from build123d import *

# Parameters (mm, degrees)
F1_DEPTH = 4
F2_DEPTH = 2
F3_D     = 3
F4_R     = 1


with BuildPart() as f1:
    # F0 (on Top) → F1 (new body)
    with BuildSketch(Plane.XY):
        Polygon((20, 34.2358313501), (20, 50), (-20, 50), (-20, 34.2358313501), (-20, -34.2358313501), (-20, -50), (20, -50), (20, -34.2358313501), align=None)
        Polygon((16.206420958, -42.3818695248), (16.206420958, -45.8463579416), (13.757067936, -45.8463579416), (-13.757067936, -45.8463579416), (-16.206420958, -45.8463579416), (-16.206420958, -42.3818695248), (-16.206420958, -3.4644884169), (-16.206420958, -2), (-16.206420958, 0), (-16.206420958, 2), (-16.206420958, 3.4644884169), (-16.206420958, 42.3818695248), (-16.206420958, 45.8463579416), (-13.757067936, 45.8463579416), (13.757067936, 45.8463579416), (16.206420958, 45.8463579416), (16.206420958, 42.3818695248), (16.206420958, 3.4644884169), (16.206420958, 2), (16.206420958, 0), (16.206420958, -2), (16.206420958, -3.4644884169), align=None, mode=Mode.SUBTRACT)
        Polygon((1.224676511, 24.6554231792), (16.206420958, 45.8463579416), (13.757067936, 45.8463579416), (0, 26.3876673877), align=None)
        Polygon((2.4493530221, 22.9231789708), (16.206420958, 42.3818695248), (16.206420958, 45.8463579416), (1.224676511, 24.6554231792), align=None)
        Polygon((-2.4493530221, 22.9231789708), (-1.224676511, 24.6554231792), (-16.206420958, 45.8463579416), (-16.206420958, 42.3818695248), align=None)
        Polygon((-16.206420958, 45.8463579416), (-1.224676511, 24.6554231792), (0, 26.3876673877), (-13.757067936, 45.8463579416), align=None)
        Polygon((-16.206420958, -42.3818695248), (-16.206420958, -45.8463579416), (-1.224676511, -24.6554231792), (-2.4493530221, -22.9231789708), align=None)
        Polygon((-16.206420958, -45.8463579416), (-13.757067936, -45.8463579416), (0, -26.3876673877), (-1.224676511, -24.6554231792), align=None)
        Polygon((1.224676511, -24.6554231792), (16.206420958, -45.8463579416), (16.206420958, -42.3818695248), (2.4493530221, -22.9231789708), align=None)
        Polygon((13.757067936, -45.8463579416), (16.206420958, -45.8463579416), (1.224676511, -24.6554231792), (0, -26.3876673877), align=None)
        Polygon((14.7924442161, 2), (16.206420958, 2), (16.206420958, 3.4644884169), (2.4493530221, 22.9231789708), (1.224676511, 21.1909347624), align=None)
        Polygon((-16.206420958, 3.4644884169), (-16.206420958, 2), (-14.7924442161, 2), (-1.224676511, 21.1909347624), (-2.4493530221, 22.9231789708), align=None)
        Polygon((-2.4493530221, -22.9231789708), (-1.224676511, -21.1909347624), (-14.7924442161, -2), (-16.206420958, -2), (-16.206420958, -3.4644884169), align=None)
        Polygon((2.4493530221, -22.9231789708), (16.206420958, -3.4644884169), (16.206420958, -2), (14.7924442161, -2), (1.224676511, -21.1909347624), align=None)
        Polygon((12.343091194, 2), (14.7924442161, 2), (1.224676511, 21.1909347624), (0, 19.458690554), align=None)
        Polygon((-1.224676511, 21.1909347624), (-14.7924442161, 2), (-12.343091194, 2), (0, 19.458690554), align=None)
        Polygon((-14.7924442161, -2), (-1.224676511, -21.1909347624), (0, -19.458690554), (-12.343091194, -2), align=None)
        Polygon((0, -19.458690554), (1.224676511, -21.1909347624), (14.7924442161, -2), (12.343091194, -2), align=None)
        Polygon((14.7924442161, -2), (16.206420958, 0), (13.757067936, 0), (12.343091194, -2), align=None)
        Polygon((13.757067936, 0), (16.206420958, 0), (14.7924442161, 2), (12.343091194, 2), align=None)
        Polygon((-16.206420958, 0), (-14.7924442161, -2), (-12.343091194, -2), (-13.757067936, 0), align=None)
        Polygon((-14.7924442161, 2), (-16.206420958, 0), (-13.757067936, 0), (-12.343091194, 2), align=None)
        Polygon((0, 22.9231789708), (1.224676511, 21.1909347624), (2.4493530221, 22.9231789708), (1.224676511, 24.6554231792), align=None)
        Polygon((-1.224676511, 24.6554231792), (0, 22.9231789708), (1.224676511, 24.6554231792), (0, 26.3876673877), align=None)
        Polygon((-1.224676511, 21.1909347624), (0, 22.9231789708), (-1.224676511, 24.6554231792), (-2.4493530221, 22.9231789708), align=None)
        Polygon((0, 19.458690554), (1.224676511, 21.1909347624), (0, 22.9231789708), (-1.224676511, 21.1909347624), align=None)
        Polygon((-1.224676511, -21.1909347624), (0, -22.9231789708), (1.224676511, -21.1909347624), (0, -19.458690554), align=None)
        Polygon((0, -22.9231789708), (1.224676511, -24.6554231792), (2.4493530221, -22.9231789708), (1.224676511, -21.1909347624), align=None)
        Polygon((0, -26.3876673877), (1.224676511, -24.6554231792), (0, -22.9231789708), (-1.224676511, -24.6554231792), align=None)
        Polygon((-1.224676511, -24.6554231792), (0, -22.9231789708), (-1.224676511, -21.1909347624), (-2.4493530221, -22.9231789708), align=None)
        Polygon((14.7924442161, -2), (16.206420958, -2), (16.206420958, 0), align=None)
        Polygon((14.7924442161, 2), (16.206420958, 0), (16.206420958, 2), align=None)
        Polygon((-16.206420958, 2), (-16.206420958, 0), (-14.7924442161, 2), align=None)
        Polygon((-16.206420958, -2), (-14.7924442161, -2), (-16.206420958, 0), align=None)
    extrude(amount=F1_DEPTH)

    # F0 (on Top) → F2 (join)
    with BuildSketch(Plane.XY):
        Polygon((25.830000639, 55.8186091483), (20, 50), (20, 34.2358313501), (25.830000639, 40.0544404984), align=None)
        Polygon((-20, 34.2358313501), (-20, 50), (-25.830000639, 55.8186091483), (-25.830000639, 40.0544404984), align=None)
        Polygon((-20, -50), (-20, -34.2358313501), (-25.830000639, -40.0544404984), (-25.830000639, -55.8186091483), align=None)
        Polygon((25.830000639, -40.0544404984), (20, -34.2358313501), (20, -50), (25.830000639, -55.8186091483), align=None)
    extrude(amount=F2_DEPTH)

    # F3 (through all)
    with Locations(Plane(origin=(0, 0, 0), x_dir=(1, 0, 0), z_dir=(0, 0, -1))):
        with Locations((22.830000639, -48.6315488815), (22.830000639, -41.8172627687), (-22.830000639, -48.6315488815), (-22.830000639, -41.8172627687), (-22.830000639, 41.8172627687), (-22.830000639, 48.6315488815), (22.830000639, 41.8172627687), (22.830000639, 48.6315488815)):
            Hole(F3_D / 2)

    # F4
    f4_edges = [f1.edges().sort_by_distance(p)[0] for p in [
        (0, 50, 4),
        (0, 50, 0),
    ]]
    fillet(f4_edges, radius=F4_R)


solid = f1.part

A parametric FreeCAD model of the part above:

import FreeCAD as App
import Part
import Sketcher


def edges_at(feature, points):
    """Names of the edges that pass closest to the given points."""
    edges = feature.Shape.Edges
    near = lambda p: min(range(len(edges)), key=lambda i: edges[i].distToShape(Part.Vertex(*p))[0])
    return sorted({f"Edge{near(p) + 1}" for p in points})

doc = App.newDocument("Part")
params = doc.addObject("Spreadsheet::Sheet", "Params")
for row, (alias, value) in enumerate([
    ("sketch1_width", "40 mm"),
    ("sketch1_height", "100 mm"),
    ("pad1_length", "4 mm"),
    ("pad2_length", "2 mm"),
    ("sketch3_diameter", "3 mm"),
    ("hole_diameter", "3 mm"),
    ("fillet_radius", "1 mm"),
], start=1):
    params.set(f"A{row}", alias)
    params.set(f"B{row}", "=" + value)
    params.setAlias(f"B{row}", alias)

body = doc.addObject("PartDesign::Body", "Body")

sketch1 = doc.addObject("Sketcher::SketchObject", "Sketch")
body.addObject(sketch1)
sketch1.AttachmentSupport = (doc.XY_Plane, [""])
sketch1.MapMode = "FlatFace"
sketch1.addGeometry(Part.LineSegment(App.Vector(20, 50, 0), App.Vector(-20, 50, 0)), False)
sketch1.addGeometry(Part.LineSegment(App.Vector(-20, 50, 0), App.Vector(-20, -50, 0)), False)
sketch1.addGeometry(Part.LineSegment(App.Vector(-20, -50, 0), App.Vector(20, -50, 0)), False)
sketch1.addGeometry(Part.LineSegment(App.Vector(20, -50, 0), App.Vector(20, 50, 0)), False)
sketch1.addGeometry(Part.LineSegment(App.Vector(-16.2, -3.5, 0), App.Vector(-2.4, -22.9, 0)), False)
sketch1.addGeometry(Part.LineSegment(App.Vector(-2.4, -22.9, 0), App.Vector(-16.2, -42.4, 0)), False)
sketch1.addGeometry(Part.LineSegment(App.Vector(-16.2, -42.4, 0), App.Vector(-16.2, -3.5, 0)), False)
sketch1.addGeometry(Part.LineSegment(App.Vector(-13.8, -45.8, 0), App.Vector(0, -26.4, 0)), False)
sketch1.addGeometry(Part.LineSegment(App.Vector(0, -26.4, 0), App.Vector(13.8, -45.8, 0)), False)
sketch1.addGeometry(Part.LineSegment(App.Vector(13.8, -45.8, 0), App.Vector(-13.8, -45.8, 0)), False)
sketch1.addGeometry(Part.LineSegment(App.Vector(16.2, -42.4, 0), App.Vector(2.4, -22.9, 0)), False)
sketch1.addGeometry(Part.LineSegment(App.Vector(2.4, -22.9, 0), App.Vector(16.2, -3.5, 0)), False)
sketch1.addGeometry(Part.LineSegment(App.Vector(16.2, -3.5, 0), App.Vector(16.2, -42.4, 0)), False)
sketch1.addGeometry(Part.LineSegment(App.Vector(-16.2, 42.4, 0), App.Vector(-2.4, 22.9, 0)), False)
sketch1.addGeometry(Part.LineSegment(App.Vector(-2.4, 22.9, 0), App.Vector(-16.2, 3.5, 0)), False)
sketch1.addGeometry(Part.LineSegment(App.Vector(-16.2, 3.5, 0), App.Vector(-16.2, 42.4, 0)), False)
sketch1.addGeometry(Part.LineSegment(App.Vector(12.3, -2, 0), App.Vector(0, -19.5, 0)), False)
sketch1.addGeometry(Part.LineSegment(App.Vector(0, -19.5, 0), App.Vector(-12.3, -2, 0)), False)
sketch1.addGeometry(Part.LineSegment(App.Vector(-12.3, -2, 0), App.Vector(-13.8, 0, 0)), False)
sketch1.addGeometry(Part.LineSegment(App.Vector(-13.8, 0, 0), App.Vector(-12.3, 2, 0)), False)
sketch1.addGeometry(Part.LineSegment(App.Vector(-12.3, 2, 0), App.Vector(0, 19.5, 0)), False)
sketch1.addGeometry(Part.LineSegment(App.Vector(0, 19.5, 0), App.Vector(12.3, 2, 0)), False)
sketch1.addGeometry(Part.LineSegment(App.Vector(12.3, 2, 0), App.Vector(13.8, 0, 0)), False)
sketch1.addGeometry(Part.LineSegment(App.Vector(13.8, 0, 0), App.Vector(12.3, -2, 0)), False)
sketch1.addGeometry(Part.LineSegment(App.Vector(13.8, 45.8, 0), App.Vector(0, 26.4, 0)), False)
sketch1.addGeometry(Part.LineSegment(App.Vector(0, 26.4, 0), App.Vector(-13.8, 45.8, 0)), False)
sketch1.addGeometry(Part.LineSegment(App.Vector(-13.8, 45.8, 0), App.Vector(13.8, 45.8, 0)), False)
sketch1.addGeometry(Part.LineSegment(App.Vector(16.2, 3.5, 0), App.Vector(2.4, 22.9, 0)), False)
sketch1.addGeometry(Part.LineSegment(App.Vector(2.4, 22.9, 0), App.Vector(16.2, 42.4, 0)), False)
sketch1.addGeometry(Part.LineSegment(App.Vector(16.2, 42.4, 0), App.Vector(16.2, 3.5, 0)), False)
sketch1.addConstraint(Sketcher.Constraint("Coincident", 0, 2, 1, 1))
sketch1.addConstraint(Sketcher.Constraint("Coincident", 1, 2, 2, 1))
sketch1.addConstraint(Sketcher.Constraint("Coincident", 2, 2, 3, 1))
sketch1.addConstraint(Sketcher.Constraint("Coincident", 3, 2, 0, 1))
sketch1.addConstraint(Sketcher.Constraint("Coincident", 4, 2, 5, 1))
sketch1.addConstraint(Sketcher.Constraint("Coincident", 5, 2, 6, 1))
sketch1.addConstraint(Sketcher.Constraint("Coincident", 6, 2, 4, 1))
sketch1.addConstraint(Sketcher.Constraint("Coincident", 7, 2, 8, 1))
sketch1.addConstraint(Sketcher.Constraint("Coincident", 8, 2, 9, 1))
sketch1.addConstraint(Sketcher.Constraint("Coincident", 9, 2, 7, 1))
sketch1.addConstraint(Sketcher.Constraint("Coincident", 10, 2, 11, 1))
sketch1.addConstraint(Sketcher.Constraint("Coincident", 11, 2, 12, 1))
sketch1.addConstraint(Sketcher.Constraint("Coincident", 12, 2, 10, 1))
sketch1.addConstraint(Sketcher.Constraint("Coincident", 13, 2, 14, 1))
sketch1.addConstraint(Sketcher.Constraint("Coincident", 14, 2, 15, 1))
sketch1.addConstraint(Sketcher.Constraint("Coincident", 15, 2, 13, 1))
sketch1.addConstraint(Sketcher.Constraint("Coincident", 16, 2, 17, 1))
sketch1.addConstraint(Sketcher.Constraint("Coincident", 17, 2, 18, 1))
sketch1.addConstraint(Sketcher.Constraint("Coincident", 18, 2, 19, 1))
sketch1.addConstraint(Sketcher.Constraint("Coincident", 19, 2, 20, 1))
sketch1.addConstraint(Sketcher.Constraint("Coincident", 20, 2, 21, 1))
sketch1.addConstraint(Sketcher.Constraint("Coincident", 21, 2, 22, 1))
sketch1.addConstraint(Sketcher.Constraint("Coincident", 22, 2, 23, 1))
sketch1.addConstraint(Sketcher.Constraint("Coincident", 23, 2, 16, 1))
sketch1.addConstraint(Sketcher.Constraint("Coincident", 24, 2, 25, 1))
sketch1.addConstraint(Sketcher.Constraint("Coincident", 25, 2, 26, 1))
sketch1.addConstraint(Sketcher.Constraint("Coincident", 26, 2, 24, 1))
sketch1.addConstraint(Sketcher.Constraint("Coincident", 27, 2, 28, 1))
sketch1.addConstraint(Sketcher.Constraint("Coincident", 28, 2, 29, 1))
sketch1.addConstraint(Sketcher.Constraint("Coincident", 29, 2, 27, 1))
sketch1.addConstraint(Sketcher.Constraint("Horizontal", 0))
sketch1.addConstraint(Sketcher.Constraint("Vertical", 1))
sketch1.addConstraint(Sketcher.Constraint("Horizontal", 2))
sketch1.addConstraint(Sketcher.Constraint("Vertical", 3))
sketch1.addConstraint(Sketcher.Constraint("Vertical", 6))
sketch1.addConstraint(Sketcher.Constraint("Horizontal", 9))
sketch1.addConstraint(Sketcher.Constraint("Vertical", 12))
sketch1.addConstraint(Sketcher.Constraint("Vertical", 15))
sketch1.addConstraint(Sketcher.Constraint("Horizontal", 26))
sketch1.addConstraint(Sketcher.Constraint("Vertical", 29))
sketch1.addConstraint(Sketcher.Constraint("Symmetric", 0, 2, 2, 2, -1, 1))
sketch1.addConstraint(Sketcher.Constraint("Symmetric", 10, 2, 13, 2, -1, 1))
sketch1.addConstraint(Sketcher.Constraint("Symmetric", 11, 2, 14, 2, -1, 1))
sketch1.addConstraint(Sketcher.Constraint("Symmetric", 16, 2, 20, 2, -1, 1))
sketch1.addConstraint(Sketcher.Constraint("Symmetric", 17, 2, 21, 2, -1, 1))
sketch1.addConstraint(Sketcher.Constraint("Symmetric", 18, 2, 22, 2, -1, 1))
sketch1.addConstraint(Sketcher.Constraint("Symmetric", 19, 2, 23, 2, -1, 1))
sketch1.addConstraint(Sketcher.Constraint("Symmetric", 7, 2, 24, 2, -1, 1))
sketch1.addConstraint(Sketcher.Constraint("Symmetric", 8, 2, 25, 2, -1, 1))
sketch1.addConstraint(Sketcher.Constraint("Symmetric", 4, 2, 27, 2, -1, 1))
sketch1.addConstraint(Sketcher.Constraint("Symmetric", 5, 2, 28, 2, -1, 1))
sketch1.addConstraint(Sketcher.Constraint("Symmetric", 4, 2, 10, 2, -2))
sketch1.addConstraint(Sketcher.Constraint("Symmetric", 6, 2, 11, 2, -2))
sketch1.addConstraint(Sketcher.Constraint("Symmetric", 19, 2, 21, 2, -2))
sketch1.addConstraint(Sketcher.Constraint("PointOnObject", 7, 2, -2))
sketch1.addConstraint(Sketcher.Constraint("PointOnObject", 16, 2, -2))
sketch1.addConstraint(Sketcher.Constraint("PointOnObject", 18, 2, -1))
sketch1.addConstraint(Sketcher.Constraint("Parallel", 5, 7))
sketch1.addConstraint(Sketcher.Constraint("Parallel", 4, 8))
sketch1.addConstraint(Sketcher.Constraint("Parallel", 8, 10))
sketch1.addConstraint(Sketcher.Constraint("Parallel", 7, 11))
sketch1.addConstraint(Sketcher.Constraint("Parallel", 10, 13))
sketch1.addConstraint(Sketcher.Constraint("Parallel", 14, 16))
sketch1.addConstraint(Sketcher.Constraint("Parallel", 17, 18))
sketch1.addConstraint(Sketcher.Constraint("Parallel", 23, 24))
sketch1.addConstraint(Sketcher.Constraint("Parallel", 25, 27))
sketch1.addConstraint(Sketcher.Constraint("Vertical", 9, 2, 18, 2))
sketch1.addConstraint(Sketcher.Constraint("Equal", 5, 7))
sketch1.addConstraint(Sketcher.Constraint("DistanceX", 0, 2, 0, 1, 40.0))
sketch1.addConstraint(Sketcher.Constraint("DistanceY", 1, 2, 1, 1, 100.0))
sketch1.addConstraint(Sketcher.Constraint("DistanceY", 17, 2, -1, 1, 2.0))
sketch1.addConstraint(Sketcher.Constraint("Distance", 4, 23.830601))
sketch1.addConstraint(Sketcher.Constraint("DistanceY", 6, 1, 6, 2, 38.917381))
sketch1.addConstraint(Sketcher.Constraint("DistanceY", 4, 2, -1, 1, 22.923179))
sketch1.addConstraint(Sketcher.Constraint("DistanceX", 5, 2, -1, 1, 16.206421))
sketch1.addConstraint(Sketcher.Constraint("DistanceY", 7, 2, 4, 2, 3.464488))
sketch1.setExpression("Constraints[68]", "Params.sketch1_width")
sketch1.setExpression("Constraints[69]", "Params.sketch1_height")
pad1 = doc.addObject("PartDesign::Pad", "Pad")
body.addObject(pad1)
pad1.Profile = sketch1
pad1.setExpression("Length", "Params.pad1_length")

sketch2 = doc.addObject("Sketcher::SketchObject", "Sketch001")
body.addObject(sketch2)
sketch2.AttachmentSupport = (doc.XY_Plane, [""])
sketch2.MapMode = "FlatFace"
sketch2.addGeometry(Part.LineSegment(App.Vector(26, 56, 0), App.Vector(20, 50, 0)), False)
sketch2.addGeometry(Part.LineSegment(App.Vector(20, 50, 0), App.Vector(20, 34, 0)), False)
sketch2.addGeometry(Part.LineSegment(App.Vector(20, 34, 0), App.Vector(26, 40, 0)), False)
sketch2.addGeometry(Part.LineSegment(App.Vector(26, 40, 0), App.Vector(26, 56, 0)), False)
sketch2.addGeometry(Part.LineSegment(App.Vector(-20, 34, 0), App.Vector(-20, 50, 0)), False)
sketch2.addGeometry(Part.LineSegment(App.Vector(-20, 50, 0), App.Vector(-26, 56, 0)), False)
sketch2.addGeometry(Part.LineSegment(App.Vector(-26, 56, 0), App.Vector(-26, 40, 0)), False)
sketch2.addGeometry(Part.LineSegment(App.Vector(-26, 40, 0), App.Vector(-20, 34, 0)), False)
sketch2.addGeometry(Part.LineSegment(App.Vector(-20, -50, 0), App.Vector(-20, -34, 0)), False)
sketch2.addGeometry(Part.LineSegment(App.Vector(-20, -34, 0), App.Vector(-26, -40, 0)), False)
sketch2.addGeometry(Part.LineSegment(App.Vector(-26, -40, 0), App.Vector(-26, -56, 0)), False)
sketch2.addGeometry(Part.LineSegment(App.Vector(-26, -56, 0), App.Vector(-20, -50, 0)), False)
sketch2.addGeometry(Part.LineSegment(App.Vector(26, -40, 0), App.Vector(20, -34, 0)), False)
sketch2.addGeometry(Part.LineSegment(App.Vector(20, -34, 0), App.Vector(20, -50, 0)), False)
sketch2.addGeometry(Part.LineSegment(App.Vector(20, -50, 0), App.Vector(26, -56, 0)), False)
sketch2.addGeometry(Part.LineSegment(App.Vector(26, -56, 0), App.Vector(26, -40, 0)), False)
sketch2.addConstraint(Sketcher.Constraint("Coincident", 0, 2, 1, 1))
sketch2.addConstraint(Sketcher.Constraint("Coincident", 1, 2, 2, 1))
sketch2.addConstraint(Sketcher.Constraint("Coincident", 2, 2, 3, 1))
sketch2.addConstraint(Sketcher.Constraint("Coincident", 3, 2, 0, 1))
sketch2.addConstraint(Sketcher.Constraint("Coincident", 4, 2, 5, 1))
sketch2.addConstraint(Sketcher.Constraint("Coincident", 5, 2, 6, 1))
sketch2.addConstraint(Sketcher.Constraint("Coincident", 6, 2, 7, 1))
sketch2.addConstraint(Sketcher.Constraint("Coincident", 7, 2, 4, 1))
sketch2.addConstraint(Sketcher.Constraint("Coincident", 8, 2, 9, 1))
sketch2.addConstraint(Sketcher.Constraint("Coincident", 9, 2, 10, 1))
sketch2.addConstraint(Sketcher.Constraint("Coincident", 10, 2, 11, 1))
sketch2.addConstraint(Sketcher.Constraint("Coincident", 11, 2, 8, 1))
sketch2.addConstraint(Sketcher.Constraint("Coincident", 12, 2, 13, 1))
sketch2.addConstraint(Sketcher.Constraint("Coincident", 13, 2, 14, 1))
sketch2.addConstraint(Sketcher.Constraint("Coincident", 14, 2, 15, 1))
sketch2.addConstraint(Sketcher.Constraint("Coincident", 15, 2, 12, 1))
sketch2.addConstraint(Sketcher.Constraint("Vertical", 1))
sketch2.addConstraint(Sketcher.Constraint("Vertical", 3))
sketch2.addConstraint(Sketcher.Constraint("Vertical", 4))
sketch2.addConstraint(Sketcher.Constraint("Vertical", 6))
sketch2.addConstraint(Sketcher.Constraint("Vertical", 8))
sketch2.addConstraint(Sketcher.Constraint("Vertical", 10))
sketch2.addConstraint(Sketcher.Constraint("Vertical", 13))
sketch2.addConstraint(Sketcher.Constraint("Vertical", 15))
sketch2.addConstraint(Sketcher.Constraint("Symmetric", 1, 2, 8, 2, -1, 1))
sketch2.addConstraint(Sketcher.Constraint("Symmetric", 2, 2, 9, 2, -1, 1))
sketch2.addConstraint(Sketcher.Constraint("Symmetric", 7, 2, 12, 2, -1, 1))
sketch2.addConstraint(Sketcher.Constraint("Symmetric", 5, 2, 14, 2, -1, 1))
sketch2.addConstraint(Sketcher.Constraint("Symmetric", 0, 2, 4, 2, -2))
sketch2.addConstraint(Sketcher.Constraint("Symmetric", 3, 2, 5, 2, -2))
sketch2.addConstraint(Sketcher.Constraint("Parallel", 0, 2))
sketch2.addConstraint(Sketcher.Constraint("Parallel", 5, 7))
sketch2.addConstraint(Sketcher.Constraint("Parallel", 9, 11))
sketch2.addConstraint(Sketcher.Constraint("Parallel", 7, 12))
sketch2.addConstraint(Sketcher.Constraint("Parallel", 12, 14))
sketch2.addConstraint(Sketcher.Constraint("Horizontal", 2, 2, 6, 2))
sketch2.addConstraint(Sketcher.Constraint("Horizontal", 11, 2, 13, 2))
sketch2.addConstraint(Sketcher.Constraint("DistanceX", -1, 1, 0, 2, 20.0))
sketch2.addConstraint(Sketcher.Constraint("DistanceY", -1, 1, 0, 2, 50.0))
sketch2.addConstraint(Sketcher.Constraint("DistanceX", -1, 1, 2, 2, 25.830001))
sketch2.addConstraint(Sketcher.Constraint("DistanceY", 1, 2, 1, 1, 15.764169))
sketch2.addConstraint(Sketcher.Constraint("DistanceY", -1, 1, 2, 2, 40.05444))
pad2 = doc.addObject("PartDesign::Pad", "Pad001")
body.addObject(pad2)
pad2.Profile = sketch2
pad2.setExpression("Length", "Params.pad2_length")

sketch3 = doc.addObject("Sketcher::SketchObject", "Sketch002")
body.addObject(sketch3)
sketch3.AttachmentSupport = (doc.XY_Plane, [""])
sketch3.MapMode = "FlatFace"
sketch3.addGeometry(Part.Circle(App.Vector(22.8, 48.6, 0), App.Vector(0, 0, 1), 1.5), False)
sketch3.addGeometry(Part.Circle(App.Vector(22.8, 41.8, 0), App.Vector(0, 0, 1), 1.5), False)
sketch3.addGeometry(Part.Circle(App.Vector(-22.8, 48.6, 0), App.Vector(0, 0, 1), 1.5), False)
sketch3.addGeometry(Part.Circle(App.Vector(-22.8, 41.8, 0), App.Vector(0, 0, 1), 1.5), False)
sketch3.addGeometry(Part.Circle(App.Vector(-22.8, -41.8, 0), App.Vector(0, 0, 1), 1.5), False)
sketch3.addGeometry(Part.Circle(App.Vector(-22.8, -48.6, 0), App.Vector(0, 0, 1), 1.5), False)
sketch3.addGeometry(Part.Circle(App.Vector(22.8, -41.8, 0), App.Vector(0, 0, 1), 1.5), False)
sketch3.addGeometry(Part.Circle(App.Vector(22.8, -48.6, 0), App.Vector(0, 0, 1), 1.5), False)
sketch3.addConstraint(Sketcher.Constraint("Equal", 0, 1))
sketch3.addConstraint(Sketcher.Constraint("Equal", 1, 2))
sketch3.addConstraint(Sketcher.Constraint("Equal", 2, 3))
sketch3.addConstraint(Sketcher.Constraint("Equal", 3, 4))
sketch3.addConstraint(Sketcher.Constraint("Equal", 4, 5))
sketch3.addConstraint(Sketcher.Constraint("Equal", 5, 6))
sketch3.addConstraint(Sketcher.Constraint("Equal", 6, 7))
sketch3.addConstraint(Sketcher.Constraint("Symmetric", 1, 3, 4, 3, -1, 1))
sketch3.addConstraint(Sketcher.Constraint("Symmetric", 0, 3, 5, 3, -1, 1))
sketch3.addConstraint(Sketcher.Constraint("Symmetric", 3, 3, 6, 3, -1, 1))
sketch3.addConstraint(Sketcher.Constraint("Symmetric", 2, 3, 7, 3, -1, 1))
sketch3.addConstraint(Sketcher.Constraint("Symmetric", 0, 3, 2, 3, -2))
sketch3.addConstraint(Sketcher.Constraint("Symmetric", 1, 3, 3, 3, -2))
sketch3.addConstraint(Sketcher.Constraint("Vertical", 0, 3, 1, 3))
sketch3.addConstraint(Sketcher.Constraint("Diameter", 0, 3.0))
sketch3.addConstraint(Sketcher.Constraint("DistanceX", -1, 1, 0, 3, 22.830001))
sketch3.addConstraint(Sketcher.Constraint("DistanceY", -1, 1, 0, 3, 48.631549))
sketch3.addConstraint(Sketcher.Constraint("DistanceY", 4, 3, 2, 3, 90.448812))
sketch3.setExpression("Constraints[14]", "Params.sketch3_diameter")
doc.recompute()
hole = doc.addObject("PartDesign::Hole", "Hole")
body.addObject(hole)
hole.Profile = sketch3
hole.ThreadType = "None"
hole.setExpression("Diameter", "Params.hole_diameter")
hole.DepthType = "ThroughAll"
hole.Reversed = True
doc.recompute()

fillet = doc.addObject("PartDesign::Fillet", "Fillet")
body.addObject(fillet)
fillet.Base = (hole, edges_at(hole, [(0, 50, 4), (0, 50, 0)]))
fillet.setExpression("Radius", "Params.fillet_radius")

doc.recompute()
